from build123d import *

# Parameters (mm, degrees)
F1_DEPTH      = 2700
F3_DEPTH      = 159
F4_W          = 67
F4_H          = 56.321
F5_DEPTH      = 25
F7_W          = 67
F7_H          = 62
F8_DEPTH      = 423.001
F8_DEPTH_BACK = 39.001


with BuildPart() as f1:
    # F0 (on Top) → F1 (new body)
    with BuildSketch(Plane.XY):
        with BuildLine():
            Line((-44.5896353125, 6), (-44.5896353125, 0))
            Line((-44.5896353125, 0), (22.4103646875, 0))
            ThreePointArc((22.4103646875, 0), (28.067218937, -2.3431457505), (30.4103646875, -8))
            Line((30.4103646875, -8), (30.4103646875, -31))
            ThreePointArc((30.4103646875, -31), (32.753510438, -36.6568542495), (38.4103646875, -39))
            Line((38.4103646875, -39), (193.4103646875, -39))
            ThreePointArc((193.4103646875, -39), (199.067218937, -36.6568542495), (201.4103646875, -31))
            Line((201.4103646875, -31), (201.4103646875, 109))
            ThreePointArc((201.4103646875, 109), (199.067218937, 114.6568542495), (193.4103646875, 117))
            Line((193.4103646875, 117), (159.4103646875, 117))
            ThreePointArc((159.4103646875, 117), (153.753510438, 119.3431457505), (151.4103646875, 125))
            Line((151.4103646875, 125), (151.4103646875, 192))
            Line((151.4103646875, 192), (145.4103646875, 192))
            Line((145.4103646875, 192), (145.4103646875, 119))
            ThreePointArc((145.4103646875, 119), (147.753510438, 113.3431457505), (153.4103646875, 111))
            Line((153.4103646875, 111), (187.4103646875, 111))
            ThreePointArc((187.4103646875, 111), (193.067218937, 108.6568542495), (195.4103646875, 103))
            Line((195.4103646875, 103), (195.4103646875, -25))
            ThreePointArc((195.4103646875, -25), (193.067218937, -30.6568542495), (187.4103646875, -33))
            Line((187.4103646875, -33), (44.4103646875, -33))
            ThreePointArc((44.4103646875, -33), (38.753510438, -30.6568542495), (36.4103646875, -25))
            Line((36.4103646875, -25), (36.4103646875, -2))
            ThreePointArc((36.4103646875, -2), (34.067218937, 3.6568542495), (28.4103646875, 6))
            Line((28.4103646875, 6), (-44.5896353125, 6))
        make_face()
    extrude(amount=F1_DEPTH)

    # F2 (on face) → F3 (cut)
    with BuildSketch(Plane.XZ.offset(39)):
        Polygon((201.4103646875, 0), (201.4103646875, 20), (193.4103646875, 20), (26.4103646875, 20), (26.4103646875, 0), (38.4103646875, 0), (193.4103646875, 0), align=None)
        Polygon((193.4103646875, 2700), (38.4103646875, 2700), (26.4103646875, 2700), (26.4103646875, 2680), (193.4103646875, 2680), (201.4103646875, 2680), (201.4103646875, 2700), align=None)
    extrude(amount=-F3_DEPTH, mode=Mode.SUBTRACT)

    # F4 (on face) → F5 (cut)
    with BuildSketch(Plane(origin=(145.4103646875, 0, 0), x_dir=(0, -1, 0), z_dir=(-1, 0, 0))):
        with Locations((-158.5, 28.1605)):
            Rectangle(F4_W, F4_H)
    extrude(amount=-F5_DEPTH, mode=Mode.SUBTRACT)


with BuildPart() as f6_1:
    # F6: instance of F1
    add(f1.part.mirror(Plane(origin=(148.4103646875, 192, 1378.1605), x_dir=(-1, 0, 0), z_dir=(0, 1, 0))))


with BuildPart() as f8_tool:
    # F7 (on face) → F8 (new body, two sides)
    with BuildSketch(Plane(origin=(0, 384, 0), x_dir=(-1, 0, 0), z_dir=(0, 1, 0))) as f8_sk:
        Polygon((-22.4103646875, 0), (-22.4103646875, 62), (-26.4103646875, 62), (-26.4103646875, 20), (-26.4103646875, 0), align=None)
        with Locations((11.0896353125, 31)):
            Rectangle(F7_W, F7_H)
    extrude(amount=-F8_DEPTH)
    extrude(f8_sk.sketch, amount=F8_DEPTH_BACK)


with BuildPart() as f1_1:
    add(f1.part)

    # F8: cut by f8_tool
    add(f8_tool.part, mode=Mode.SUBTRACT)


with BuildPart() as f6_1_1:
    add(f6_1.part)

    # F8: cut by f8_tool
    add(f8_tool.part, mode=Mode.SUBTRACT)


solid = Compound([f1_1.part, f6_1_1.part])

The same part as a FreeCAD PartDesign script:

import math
import FreeCAD as App
import Part
import Sketcher
from FreeCAD import Vector


def add_polygon(sketch, points):
    """Adds a closed chain of lines whose ends are joined by coincident constraints."""
    first, n = sketch.GeometryCount, len(points)
    for a, b in zip(points, points[1:] + points[:1]):
        sketch.addGeometry(Part.LineSegment(App.Vector(*a, 0), App.Vector(*b, 0)), False)
    for i in range(n):
        sketch.addConstraint(Sketcher.Constraint("Coincident", first + i, 2, first + (i + 1) % n, 1))

doc = App.newDocument("Part")
body = doc.addObject("PartDesign::Body", "Body")

sketch1 = body.newObject("Sketcher::SketchObject", "Sketch")
sketch1.AttachmentSupport = (doc.getObject("XY_Plane"), [""])
sketch1.MapMode = "FlatFace"
sketch1.addGeometry(Part.LineSegment(Vector(-45, 6, 0), Vector(-45, 0, 0)), False)
sketch1.addGeometry(Part.LineSegment(Vector(-45, 0, 0), Vector(22, 0, 0)), False)
sketch1.addGeometry(Part.ArcOfCircle(Part.Circle(Vector(22, -8, 0), Vector(0, 0, 1), 8), math.radians(0), math.radians(90)), False)
sketch1.addGeometry(Part.LineSegment(Vector(30, -8, 0), Vector(30, -31, 0)), False)
sketch1.addGeometry(Part.ArcOfCircle(Part.Circle(Vector(38, -31, 0), Vector(0, 0, 1), 8), math.radians(180), math.radians(270)), False)
sketch1.addGeometry(Part.LineSegment(Vector(38, -39, 0), Vector(193, -39, 0)), False)
sketch1.addGeometry(Part.ArcOfCircle(Part.Circle(Vector(193, -31, 0), Vector(0, 0, 1), 8), math.radians(-90), math.radians(0)), False)
sketch1.addGeometry(Part.LineSegment(Vector(201, -31, 0), Vector(201, 109, 0)), False)
sketch1.addGeometry(Part.ArcOfCircle(Part.Circle(Vector(193, 109, 0), Vector(0, 0, 1), 8), math.radians(0), math.radians(90)), False)
sketch1.addGeometry(Part.LineSegment(Vector(193, 117, 0), Vector(159, 117, 0)), False)
sketch1.addGeometry(Part.ArcOfCircle(Part.Circle(Vector(159, 125, 0), Vector(0, 0, 1), 8), math.radians(180), math.radians(270)), False)
sketch1.addGeometry(Part.LineSegment(Vector(151, 125, 0), Vector(151, 192, 0)), False)
sketch1.addGeometry(Part.LineSegment(Vector(151, 192, 0), Vector(145, 192, 0)), False)
sketch1.addGeometry(Part.LineSegment(Vector(145, 192, 0), Vector(145, 119, 0)), False)
sketch1.addGeometry(Part.ArcOfCircle(Part.Circle(Vector(153, 119, 0), Vector(0, 0, 1), 8), math.radians(180), math.radians(270)), False)
sketch1.addGeometry(Part.LineSegment(Vector(153, 111, 0), Vector(187, 111, 0)), False)
sketch1.addGeometry(Part.ArcOfCircle(Part.Circle(Vector(187, 103, 0), Vector(0, 0, 1), 8), math.radians(0), math.radians(90)), False)
sketch1.addGeometry(Part.LineSegment(Vector(195, 103, 0), Vector(195, -25, 0)), False)
sketch1.addGeometry(Part.ArcOfCircle(Part.Circle(Vector(187, -25, 0), Vector(0, 0, 1), 8), math.radians(-90), math.radians(0)), False)
sketch1.addGeometry(Part.LineSegment(Vector(187, -33, 0), Vector(44, -33, 0)), False)
sketch1.addGeometry(Part.ArcOfCircle(Part.Circle(Vector(44, -25, 0), Vector(0, 0, 1), 8), math.radians(180), math.radians(270)), False)
sketch1.addGeometry(Part.LineSegment(Vector(36, -25, 0), Vector(36, -2, 0)), False)
sketch1.addGeometry(Part.ArcOfCircle(Part.Circle(Vector(28, -2, 0), Vector(0, 0, 1), 8), math.radians(0), math.radians(90)), False)
sketch1.addGeometry(Part.LineSegment(Vector(28, 6, 0), Vector(-45, 6, 0)), False)
sketch1.addConstraint(Sketcher.Constraint("Coincident", 0, 2, 1, 1))
sketch1.addConstraint(Sketcher.Constraint("Tangent", 1, 2, 2, 2))
sketch1.addConstraint(Sketcher.Constraint("Tangent", 2, 1, 3, 1))
sketch1.addConstraint(Sketcher.Constraint("Tangent", 3, 2, 4, 1))
sketch1.addConstraint(Sketcher.Constraint("Tangent", 4, 2, 5, 1))
sketch1.addConstraint(Sketcher.Constraint("Tangent", 5, 2, 6, 1))
sketch1.addConstraint(Sketcher.Constraint("Tangent", 6, 2, 7, 1))
sketch1.addConstraint(Sketcher.Constraint("Tangent", 7, 2, 8, 1))
sketch1.addConstraint(Sketcher.Constraint("Tangent", 8, 2, 9, 1))
sketch1.addConstraint(Sketcher.Constraint("Tangent", 9, 2, 10, 2))
sketch1.addConstraint(Sketcher.Constraint("Tangent", 10, 1, 11, 1))
sketch1.addConstraint(Sketcher.Constraint("Coincident", 11, 2, 12, 1))
sketch1.addConstraint(Sketcher.Constraint("Coincident", 12, 2, 13, 1))
sketch1.addConstraint(Sketcher.Constraint("Tangent", 13, 2, 14, 1))
sketch1.addConstraint(Sketcher.Constraint("Tangent", 14, 2, 15, 1))
sketch1.addConstraint(Sketcher.Constraint("Tangent", 15, 2, 16, 2))
sketch1.addConstraint(Sketcher.Constraint("Tangent", 16, 1, 17, 1))
sketch1.addConstraint(Sketcher.Constraint("Tangent", 17, 2, 18, 2))
sketch1.addConstraint(Sketcher.Constraint("Tangent", 18, 1, 19, 1))
sketch1.addConstraint(Sketcher.Constraint("Tangent", 19, 2, 20, 2))
sketch1.addConstraint(Sketcher.Constraint("Tangent", 20, 1, 21, 1))
sketch1.addConstraint(Sketcher.Constraint("Tangent", 21, 2, 22, 1))
sketch1.addConstraint(Sketcher.Constraint("Tangent", 22, 2, 23, 1))
sketch1.addConstraint(Sketcher.Constraint("Coincident", 23, 2, 0, 1))
sketch1.addConstraint(Sketcher.Constraint("Vertical", 0))
sketch1.addConstraint(Sketcher.Constraint("Horizontal", 1))
sketch1.addConstraint(Sketcher.Constraint("Vertical", 3))
sketch1.addConstraint(Sketcher.Constraint("Horizontal", 5))
sketch1.addConstraint(Sketcher.Constraint("Vertical", 7))
sketch1.addConstraint(Sketcher.Constraint("Horizontal", 9))
sketch1.addConstraint(Sketcher.Constraint("Vertical", 11))
sketch1.addConstraint(Sketcher.Constraint("Horizontal", 12))
sketch1.addConstraint(Sketcher.Constraint("Vertical", 13))
sketch1.addConstraint(Sketcher.Constraint("Horizontal", 15))
sketch1.addConstraint(Sketcher.Constraint("Vertical", 17))
sketch1.addConstraint(Sketcher.Constraint("Horizontal", 19))
sketch1.addConstraint(Sketcher.Constraint("Vertical", 21))
sketch1.addConstraint(Sketcher.Constraint("Horizontal", 23))
sketch1.addConstraint(Sketcher.Constraint("Equal", 2, 4))
sketch1.addConstraint(Sketcher.Constraint("Equal", 4, 6))
sketch1.addConstraint(Sketcher.Constraint("Equal", 6, 8))
sketch1.addConstraint(Sketcher.Constraint("Equal", 8, 10))
sketch1.addConstraint(Sketcher.Constraint("Equal", 10, 14))
sketch1.addConstraint(Sketcher.Constraint("Equal", 14, 16))
sketch1.addConstraint(Sketcher.Constraint("Equal", 16, 18))
sketch1.addConstraint(Sketcher.Constraint("Equal", 18, 20))
sketch1.addConstraint(Sketcher.Constraint("Equal", 20, 22))
sketch1.addConstraint(Sketcher.Constraint("PointOnObject", 0, 2, -1))
sketch1.addConstraint(Sketcher.Constraint("Equal", 9, 15))
sketch1.addConstraint(Sketcher.Constraint("Equal", 12, 0))
sketch1.addConstraint(Sketcher.Constraint("Equal", 1, 11))
sketch1.addConstraint(Sketcher.Constraint("Equal", 23, 13))
sketch1.addConstraint(Sketcher.Constraint("Equal", 3, 21))
sketch1.addConstraint(Sketcher.Constraint("Radius", 2, 8.0))
sketch1.addConstraint(Sketcher.Constraint("DistanceX", 1, 1, 1, 2, 67.0))
sketch1.addConstraint(Sketcher.Constraint("DistanceX", 5, 1, 5, 2, 155.0))
sketch1.addConstraint(Sketcher.Constraint("DistanceX", 9, 2, 9, 1, 34.0))
sketch1.addConstraint(Sketcher.Constraint("DistanceX", 12, 2, 12, 1, 6.0))
sketch1.addConstraint(Sketcher.Constraint("DistanceX", 19, 2, 19, 1, 143.0))
sketch1.addConstraint(Sketcher.Constraint("DistanceY", 3, 2, 3, 1, 23.0))
sketch1.addConstraint(Sketcher.Constraint("DistanceY", 7, 1, 7, 2, 140.0))
sketch1.addConstraint(Sketcher.Constraint("DistanceX", -1, 1, 2, 3, 22.410365))
pad1 = body.newObject("PartDesign::Pad", "Pad")
pad1.Profile = sketch1
pad1.Length = 2700

sketch2 = body.newObject("Sketcher::SketchObject", "Sketch001")
sketch2.AttachmentSupport = (doc.getObject("XZ_Plane"), [""])
sketch2.MapMode = "FlatFace"
sketch2.AttachmentOffset = App.Placement(Vector(0, 0, 39), App.Rotation())
add_polygon(sketch2, [(201, 0), (201, 20), (26, 20), (26, 0)])
add_polygon(sketch2, [(26, 2700), (26, 2680), (201, 2680), (201, 2700)])
sketch2.addConstraint(Sketcher.Constraint("Vertical", 0))
sketch2.addConstraint(Sketcher.Constraint("Horizontal", 1))
sketch2.addConstraint(Sketcher.Constraint("Vertical", 2))
sketch2.addConstraint(Sketcher.Constraint("Horizontal", 3))
sketch2.addConstraint(Sketcher.Constraint("Vertical", 4))
sketch2.addConstraint(Sketcher.Constraint("Horizontal", 5))
sketch2.addConstraint(Sketcher.Constraint("Vertical", 6))
sketch2.addConstraint(Sketcher.Constraint("Horizontal", 7))
sketch2.addConstraint(Sketcher.Constraint("PointOnObject", 2, 2, -1))
sketch2.addConstraint(Sketcher.Constraint("Vertical", 2, 2, 4, 2))
sketch2.addConstraint(Sketcher.Constraint("Vertical", 3, 2, 5, 2))
sketch2.addConstraint(Sketcher.Constraint("Equal", 2, 4))
sketch2.addConstraint(Sketcher.Constraint("DistanceX", 1, 2, 1, 1, 175.0))
sketch2.addConstraint(Sketcher.Constraint("DistanceY", 0, 1, 0, 2, 20.0))
sketch2.addConstraint(Sketcher.Constraint("DistanceY", -1, 1, 4, 2, 2680.0))
sketch2.addConstraint(Sketcher.Constraint("DistanceX", -1, 1, 0, 2, 201.410365))
pocket1 = body.newObject("PartDesign::Pocket", "Pocket")
pocket1.Profile = sketch2
pocket1.Length = 159

sketch3 = body.newObject("Sketcher::SketchObject", "Sketch002")
sketch3.AttachmentSupport = (doc.getObject("YZ_Plane"), [""])
sketch3.MapMode = "FlatFace"
sketch3.AttachmentOffset = App.Placement(Vector(0, 0, 145.410365), App.Rotation())
add_polygon(sketch3, [(192, 56), (192, 0), (125, 0), (125, 56)])
sketch3.addConstraint(Sketcher.Constraint("Vertical", 0))
sketch3.addConstraint(Sketcher.Constraint("Horizontal", 1))
sketch3.addConstraint(Sketcher.Constraint("Vertical", 2))
sketch3.addConstraint(Sketcher.Constraint("Horizontal", 3))
sketch3.addConstraint(Sketcher.Constraint("PointOnObject", 0, 2, -1))
sketch3.addConstraint(Sketcher.Constraint("DistanceX", 1, 2, 1, 1, 67.0))
sketch3.addConstraint(Sketcher.Constraint("DistanceX", -1, 1, 0, 2, 192.0))
sketch3.addConstraint(Sketcher.Constraint("DistanceY", 0, 2, 0, 1, 56.321))
pocket2 = body.newObject("PartDesign::Pocket", "Pocket001")
pocket2.Profile = sketch3
pocket2.Length = 25
pocket2.Reversed = True
body2 = doc.addObject("PartDesign::Body", "Body001")
doc.recompute()

mirroring = doc.addObject("Part::Mirroring", "Mirroring")
mirroring.Source = body
mirroring.Base = Vector(148.410365, 192, 1378.1605)
mirroring.Normal = Vector(0, 1, 0)
body2.BaseFeature = mirroring
doc.recompute()
body3 = doc.addObject("PartDesign::Body", "Body002")

sketch4 = body3.newObject("Sketcher::SketchObject", "Sketch003")
sketch4.AttachmentSupport = (doc.getObject("XZ_Plane002"), [""])
sketch4.MapMode = "FlatFace"
sketch4.AttachmentOffset = App.Placement(Vector(0, 0, -384), App.Rotation())
add_polygon(sketch4, [(26, 62), (26, 0), (-45, 0), (-45, 62)])
sketch4.addConstraint(Sketcher.Constraint("Vertical", 0))
sketch4.addConstraint(Sketcher.Constraint("Horizontal", 1))
sketch4.addConstraint(Sketcher.Constraint("Vertical", 2))
sketch4.addConstraint(Sketcher.Constraint("Horizontal", 3))
sketch4.addConstraint(Sketcher.Constraint("PointOnObject", 0, 2, -1))
sketch4.addConstraint(Sketcher.Constraint("DistanceX", 1, 2, 1, 1, 71.0))
sketch4.addConstraint(Sketcher.Constraint("DistanceY", 0, 2, 0, 1, 62.0))
sketch4.addConstraint(Sketcher.Constraint("DistanceX", -1, 1, 0, 2, 26.410365))
pad2 = body3.newObject("PartDesign::Pad", "Pad001")
pad2.Profile = sketch4
pad2.Type = "TwoLengths"
pad2.Length = 423.001
pad2.Length2 = 39.001
doc.recompute()

body4 = doc.addObject("PartDesign::Body", "Body003")
body4.BaseFeature = body3
boolean = body.newObject("PartDesign::Boolean", "Boolean")
boolean.Type = "Cut"
boolean.addObjects([body4])
doc.recompute()

boolean2 = body2.newObject("PartDesign::Boolean", "Boolean001")
boolean2.Type = "Cut"
boolean2.addObjects([body3])
mirroring.Visibility = False

doc.recompute()
